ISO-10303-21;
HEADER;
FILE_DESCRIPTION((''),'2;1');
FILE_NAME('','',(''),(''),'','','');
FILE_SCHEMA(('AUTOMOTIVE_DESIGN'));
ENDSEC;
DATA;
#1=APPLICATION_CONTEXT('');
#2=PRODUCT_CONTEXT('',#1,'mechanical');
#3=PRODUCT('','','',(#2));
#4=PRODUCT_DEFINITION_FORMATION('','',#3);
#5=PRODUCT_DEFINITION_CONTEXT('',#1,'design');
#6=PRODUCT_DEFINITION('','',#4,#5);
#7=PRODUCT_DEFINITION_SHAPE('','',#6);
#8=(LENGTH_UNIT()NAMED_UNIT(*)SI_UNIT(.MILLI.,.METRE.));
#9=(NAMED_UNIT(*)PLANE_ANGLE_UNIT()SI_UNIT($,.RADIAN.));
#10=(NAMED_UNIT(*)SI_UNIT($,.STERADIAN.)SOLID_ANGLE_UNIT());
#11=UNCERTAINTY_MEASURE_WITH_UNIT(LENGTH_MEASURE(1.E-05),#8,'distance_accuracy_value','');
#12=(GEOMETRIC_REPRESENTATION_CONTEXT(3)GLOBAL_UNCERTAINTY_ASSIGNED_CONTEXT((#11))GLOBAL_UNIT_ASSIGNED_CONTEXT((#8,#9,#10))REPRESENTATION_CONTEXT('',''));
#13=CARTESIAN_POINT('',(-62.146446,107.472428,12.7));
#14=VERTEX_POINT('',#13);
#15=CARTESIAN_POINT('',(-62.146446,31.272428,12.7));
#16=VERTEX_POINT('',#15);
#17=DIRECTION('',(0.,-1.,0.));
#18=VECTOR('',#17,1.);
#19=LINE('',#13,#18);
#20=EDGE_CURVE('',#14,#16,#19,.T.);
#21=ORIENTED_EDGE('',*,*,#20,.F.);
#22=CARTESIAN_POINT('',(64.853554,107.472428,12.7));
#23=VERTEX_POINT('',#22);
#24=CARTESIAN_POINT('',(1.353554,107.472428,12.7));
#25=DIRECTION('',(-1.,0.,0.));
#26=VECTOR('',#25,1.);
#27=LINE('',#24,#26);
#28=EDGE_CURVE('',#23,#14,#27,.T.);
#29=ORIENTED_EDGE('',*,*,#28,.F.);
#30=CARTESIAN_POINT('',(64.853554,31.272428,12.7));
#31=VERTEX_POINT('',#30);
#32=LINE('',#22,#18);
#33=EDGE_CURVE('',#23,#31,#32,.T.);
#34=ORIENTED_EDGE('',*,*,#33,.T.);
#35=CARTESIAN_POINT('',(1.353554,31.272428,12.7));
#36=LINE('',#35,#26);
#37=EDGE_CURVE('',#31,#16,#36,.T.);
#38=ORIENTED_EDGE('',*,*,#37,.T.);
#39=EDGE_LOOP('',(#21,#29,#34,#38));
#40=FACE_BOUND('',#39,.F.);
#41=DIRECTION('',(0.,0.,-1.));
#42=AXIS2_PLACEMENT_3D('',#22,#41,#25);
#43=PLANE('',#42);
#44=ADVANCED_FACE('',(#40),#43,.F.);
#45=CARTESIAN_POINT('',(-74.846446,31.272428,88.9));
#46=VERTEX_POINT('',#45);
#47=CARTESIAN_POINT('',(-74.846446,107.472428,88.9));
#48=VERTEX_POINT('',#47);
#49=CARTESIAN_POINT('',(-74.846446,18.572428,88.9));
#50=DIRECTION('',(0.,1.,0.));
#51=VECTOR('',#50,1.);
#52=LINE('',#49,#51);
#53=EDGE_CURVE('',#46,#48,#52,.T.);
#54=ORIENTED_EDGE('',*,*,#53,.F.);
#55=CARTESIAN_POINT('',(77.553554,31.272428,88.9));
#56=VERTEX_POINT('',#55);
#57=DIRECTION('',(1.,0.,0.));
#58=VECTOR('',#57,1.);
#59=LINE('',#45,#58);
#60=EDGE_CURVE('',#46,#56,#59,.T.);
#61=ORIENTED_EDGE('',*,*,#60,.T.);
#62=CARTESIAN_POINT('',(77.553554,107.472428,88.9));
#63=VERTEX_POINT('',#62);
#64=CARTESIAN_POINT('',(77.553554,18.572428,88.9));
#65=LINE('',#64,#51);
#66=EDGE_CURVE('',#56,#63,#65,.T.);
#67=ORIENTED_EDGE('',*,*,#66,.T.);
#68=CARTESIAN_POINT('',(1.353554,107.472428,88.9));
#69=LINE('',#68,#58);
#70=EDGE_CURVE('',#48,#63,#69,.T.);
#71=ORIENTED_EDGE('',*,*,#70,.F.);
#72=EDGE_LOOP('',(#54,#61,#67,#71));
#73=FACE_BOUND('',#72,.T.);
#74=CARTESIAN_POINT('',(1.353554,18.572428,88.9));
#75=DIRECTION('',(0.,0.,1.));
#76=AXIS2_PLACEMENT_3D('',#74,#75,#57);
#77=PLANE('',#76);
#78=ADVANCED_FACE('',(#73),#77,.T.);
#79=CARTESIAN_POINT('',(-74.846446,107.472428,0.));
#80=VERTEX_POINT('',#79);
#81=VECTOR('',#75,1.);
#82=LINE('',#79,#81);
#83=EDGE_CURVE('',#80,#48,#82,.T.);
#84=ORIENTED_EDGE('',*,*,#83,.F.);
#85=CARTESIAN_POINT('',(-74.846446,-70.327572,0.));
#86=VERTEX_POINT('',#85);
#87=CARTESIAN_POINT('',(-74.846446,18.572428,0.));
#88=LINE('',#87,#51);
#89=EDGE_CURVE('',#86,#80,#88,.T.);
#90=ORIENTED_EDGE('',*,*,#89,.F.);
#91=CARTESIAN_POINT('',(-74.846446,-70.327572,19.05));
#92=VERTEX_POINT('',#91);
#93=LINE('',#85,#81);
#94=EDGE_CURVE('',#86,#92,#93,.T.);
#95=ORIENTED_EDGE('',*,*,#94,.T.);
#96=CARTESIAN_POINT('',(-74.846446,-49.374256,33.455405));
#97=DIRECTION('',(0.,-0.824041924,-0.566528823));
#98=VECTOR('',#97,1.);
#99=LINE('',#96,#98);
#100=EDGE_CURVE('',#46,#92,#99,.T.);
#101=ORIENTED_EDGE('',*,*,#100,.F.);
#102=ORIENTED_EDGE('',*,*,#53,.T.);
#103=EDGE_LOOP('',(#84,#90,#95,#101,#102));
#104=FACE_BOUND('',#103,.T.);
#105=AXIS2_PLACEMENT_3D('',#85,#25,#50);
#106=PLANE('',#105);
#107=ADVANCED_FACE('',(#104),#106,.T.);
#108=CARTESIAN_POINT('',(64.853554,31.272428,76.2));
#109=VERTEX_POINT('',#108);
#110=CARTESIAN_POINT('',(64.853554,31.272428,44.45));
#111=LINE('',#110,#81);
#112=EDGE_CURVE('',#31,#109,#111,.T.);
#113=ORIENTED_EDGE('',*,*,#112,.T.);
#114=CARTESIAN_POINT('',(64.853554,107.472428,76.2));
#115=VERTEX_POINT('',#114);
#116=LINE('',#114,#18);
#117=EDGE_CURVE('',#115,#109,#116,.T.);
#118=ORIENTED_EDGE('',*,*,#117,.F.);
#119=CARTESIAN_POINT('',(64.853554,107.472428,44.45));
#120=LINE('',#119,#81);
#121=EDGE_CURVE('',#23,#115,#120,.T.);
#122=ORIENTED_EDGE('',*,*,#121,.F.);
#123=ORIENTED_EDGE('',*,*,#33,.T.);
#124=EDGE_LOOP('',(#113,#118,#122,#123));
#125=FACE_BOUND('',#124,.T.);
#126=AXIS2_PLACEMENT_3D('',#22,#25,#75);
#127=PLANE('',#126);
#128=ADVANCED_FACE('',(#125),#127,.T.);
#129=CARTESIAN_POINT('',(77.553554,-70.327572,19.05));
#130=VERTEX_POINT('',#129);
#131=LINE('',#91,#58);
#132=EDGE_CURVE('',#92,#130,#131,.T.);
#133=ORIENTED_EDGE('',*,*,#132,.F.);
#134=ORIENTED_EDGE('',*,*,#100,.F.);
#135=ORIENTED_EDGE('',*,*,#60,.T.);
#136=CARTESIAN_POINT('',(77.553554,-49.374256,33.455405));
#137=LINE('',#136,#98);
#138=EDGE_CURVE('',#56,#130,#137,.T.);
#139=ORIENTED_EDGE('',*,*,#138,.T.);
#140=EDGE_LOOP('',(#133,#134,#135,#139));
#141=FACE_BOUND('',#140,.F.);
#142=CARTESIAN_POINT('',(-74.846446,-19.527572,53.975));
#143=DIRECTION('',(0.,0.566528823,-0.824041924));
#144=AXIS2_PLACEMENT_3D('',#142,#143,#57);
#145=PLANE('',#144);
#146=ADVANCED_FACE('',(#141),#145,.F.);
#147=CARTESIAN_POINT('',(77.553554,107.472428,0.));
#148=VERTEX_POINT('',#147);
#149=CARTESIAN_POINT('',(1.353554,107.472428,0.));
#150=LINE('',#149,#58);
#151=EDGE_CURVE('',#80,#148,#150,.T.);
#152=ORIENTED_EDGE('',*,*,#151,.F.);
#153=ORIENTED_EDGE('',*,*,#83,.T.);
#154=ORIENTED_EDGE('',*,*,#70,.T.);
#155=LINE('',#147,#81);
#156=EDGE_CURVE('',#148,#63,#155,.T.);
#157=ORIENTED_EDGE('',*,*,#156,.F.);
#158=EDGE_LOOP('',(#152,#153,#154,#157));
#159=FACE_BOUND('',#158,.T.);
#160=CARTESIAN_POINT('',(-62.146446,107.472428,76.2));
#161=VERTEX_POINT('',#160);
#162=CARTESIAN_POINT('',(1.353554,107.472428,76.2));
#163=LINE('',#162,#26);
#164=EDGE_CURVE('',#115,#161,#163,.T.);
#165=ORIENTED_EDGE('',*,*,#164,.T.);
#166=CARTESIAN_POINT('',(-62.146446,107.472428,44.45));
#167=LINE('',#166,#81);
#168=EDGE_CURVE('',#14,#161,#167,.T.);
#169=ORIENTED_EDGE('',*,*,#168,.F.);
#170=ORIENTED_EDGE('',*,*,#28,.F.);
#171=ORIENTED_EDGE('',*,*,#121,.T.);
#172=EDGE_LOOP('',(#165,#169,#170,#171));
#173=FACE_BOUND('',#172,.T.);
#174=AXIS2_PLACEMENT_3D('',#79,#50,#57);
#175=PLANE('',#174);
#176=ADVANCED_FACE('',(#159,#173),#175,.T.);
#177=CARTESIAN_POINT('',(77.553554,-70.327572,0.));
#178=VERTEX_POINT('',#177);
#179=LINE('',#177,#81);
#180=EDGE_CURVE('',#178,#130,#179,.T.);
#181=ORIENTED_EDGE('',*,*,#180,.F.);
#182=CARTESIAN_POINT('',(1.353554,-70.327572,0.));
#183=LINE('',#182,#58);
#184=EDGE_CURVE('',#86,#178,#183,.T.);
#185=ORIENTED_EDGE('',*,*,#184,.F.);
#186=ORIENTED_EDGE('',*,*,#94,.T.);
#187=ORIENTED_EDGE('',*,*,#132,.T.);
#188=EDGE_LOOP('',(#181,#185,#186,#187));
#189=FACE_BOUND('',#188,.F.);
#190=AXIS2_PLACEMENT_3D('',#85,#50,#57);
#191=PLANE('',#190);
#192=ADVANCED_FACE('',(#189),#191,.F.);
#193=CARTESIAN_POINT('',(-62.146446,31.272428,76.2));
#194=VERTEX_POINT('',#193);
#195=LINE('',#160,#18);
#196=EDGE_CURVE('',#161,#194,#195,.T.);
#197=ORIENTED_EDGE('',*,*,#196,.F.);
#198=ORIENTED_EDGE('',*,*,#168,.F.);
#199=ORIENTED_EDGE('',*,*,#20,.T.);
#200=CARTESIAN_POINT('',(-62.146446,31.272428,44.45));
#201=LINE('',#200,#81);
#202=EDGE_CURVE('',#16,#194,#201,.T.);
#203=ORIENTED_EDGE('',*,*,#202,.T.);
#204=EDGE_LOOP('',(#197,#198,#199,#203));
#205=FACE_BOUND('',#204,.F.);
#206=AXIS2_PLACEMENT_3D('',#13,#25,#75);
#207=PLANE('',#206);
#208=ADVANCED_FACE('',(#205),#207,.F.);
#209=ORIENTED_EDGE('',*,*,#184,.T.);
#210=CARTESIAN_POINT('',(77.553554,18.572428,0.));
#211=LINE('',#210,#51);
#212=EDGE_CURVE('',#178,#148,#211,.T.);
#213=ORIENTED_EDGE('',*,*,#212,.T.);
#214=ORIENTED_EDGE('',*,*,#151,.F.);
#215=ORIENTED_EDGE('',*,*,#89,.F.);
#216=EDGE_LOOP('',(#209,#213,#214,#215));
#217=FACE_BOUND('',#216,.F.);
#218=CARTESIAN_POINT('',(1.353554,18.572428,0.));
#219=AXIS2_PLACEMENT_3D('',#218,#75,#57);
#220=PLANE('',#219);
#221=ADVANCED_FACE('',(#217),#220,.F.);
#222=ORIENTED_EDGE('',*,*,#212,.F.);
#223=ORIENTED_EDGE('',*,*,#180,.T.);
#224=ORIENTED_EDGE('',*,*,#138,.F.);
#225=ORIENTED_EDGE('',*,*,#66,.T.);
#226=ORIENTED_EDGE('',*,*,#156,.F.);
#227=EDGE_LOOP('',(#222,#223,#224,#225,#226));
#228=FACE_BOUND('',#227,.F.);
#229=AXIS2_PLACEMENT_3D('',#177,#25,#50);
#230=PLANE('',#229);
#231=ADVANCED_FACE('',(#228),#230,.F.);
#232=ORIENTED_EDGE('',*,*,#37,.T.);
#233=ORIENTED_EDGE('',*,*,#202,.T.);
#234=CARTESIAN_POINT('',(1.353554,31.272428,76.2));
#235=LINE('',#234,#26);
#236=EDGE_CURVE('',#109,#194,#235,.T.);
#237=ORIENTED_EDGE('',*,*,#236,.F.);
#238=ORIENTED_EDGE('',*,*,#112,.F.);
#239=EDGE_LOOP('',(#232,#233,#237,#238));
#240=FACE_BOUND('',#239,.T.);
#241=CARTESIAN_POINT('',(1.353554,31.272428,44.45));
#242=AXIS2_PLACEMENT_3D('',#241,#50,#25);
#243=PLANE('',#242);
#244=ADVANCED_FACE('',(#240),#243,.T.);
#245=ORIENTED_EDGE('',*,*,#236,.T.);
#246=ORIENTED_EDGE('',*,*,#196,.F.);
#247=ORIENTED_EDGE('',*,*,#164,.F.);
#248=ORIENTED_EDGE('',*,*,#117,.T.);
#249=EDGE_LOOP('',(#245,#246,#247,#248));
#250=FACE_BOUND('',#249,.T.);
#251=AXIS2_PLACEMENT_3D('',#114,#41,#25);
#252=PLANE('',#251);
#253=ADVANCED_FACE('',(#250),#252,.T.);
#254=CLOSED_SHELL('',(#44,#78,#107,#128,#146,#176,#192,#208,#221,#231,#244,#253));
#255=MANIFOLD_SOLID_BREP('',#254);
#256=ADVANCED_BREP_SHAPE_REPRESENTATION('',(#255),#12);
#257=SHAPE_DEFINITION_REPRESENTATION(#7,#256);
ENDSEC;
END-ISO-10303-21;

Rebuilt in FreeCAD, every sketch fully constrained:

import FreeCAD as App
import Part
import Sketcher

V = App.Vector
Q = App.Units.Quantity


def edges_at(feature, points):
    """Names of the edges that pass closest to the given points."""
    edges = feature.Shape.Edges
    near = lambda p: min(range(len(edges)), key=lambda i: edges[i].distToShape(Part.Vertex(*p))[0])
    return sorted({f"Edge{near(p) + 1}" for p in points})


def add_polygon(sketch, points):
    """Adds a closed chain of lines whose ends are joined by coincident constraints."""
    first, n = sketch.GeometryCount, len(points)
    for a, b in zip(points, points[1:] + points[:1]):
        sketch.addGeometry(Part.LineSegment(App.Vector(*a, 0), App.Vector(*b, 0)), False)
    for i in range(n):
        sketch.addConstraint(Sketcher.Constraint("Coincident", first + i, 2, first + (i + 1) % n, 1))

doc = App.newDocument("Part")
body = doc.addObject("PartDesign::Body", "Body")

sketch1 = body.newObject("Sketcher::SketchObject", "Sketch")
sketch1.AttachmentSupport = (doc.getObject("XY_Plane"), [""])
sketch1.MapMode = "FlatFace"
add_polygon(sketch1, [(-75, 107), (-75, -70), (78, -70), (78, 107)])
sketch1.addConstraint(Sketcher.Constraint("Vertical", 0))
sketch1.addConstraint(Sketcher.Constraint("Horizontal", 1))
sketch1.addConstraint(Sketcher.Constraint("Vertical", 2))
sketch1.addConstraint(Sketcher.Constraint("Horizontal", 3))
sketch1.addConstraint(Sketcher.Constraint("DistanceX", 1, 1, 1, 2, Q("6 in")))
sketch1.addConstraint(Sketcher.Constraint("DistanceY", 0, 2, 0, 1, Q("7 in")))
sketch1.addConstraint(Sketcher.Constraint("DistanceX", 0, 2, -1, 1, Q("74.846446 mm")))
sketch1.addConstraint(Sketcher.Constraint("DistanceY", 0, 2, -1, 1, Q("70.327572 mm")))
pad1 = body.newObject("PartDesign::Pad", "Pad")
pad1.Profile = sketch1
pad1.Length = Q("3.5 in")
doc.recompute()

chamfer = body.newObject("PartDesign::Chamfer", "Chamfer")
chamfer.Base = (pad1, edges_at(pad1, [(1.354, -70.328, 88.9)]))
chamfer.ChamferType = "Two distances"
chamfer.Size = Q("4 in")
chamfer.Size2 = Q("2.75 in")
chamfer.FlipDirection = True

sketch2 = body.newObject("Sketcher::SketchObject", "Sketch001")
sketch2.AttachmentSupport = (doc.getObject("XZ_Plane"), [""])
sketch2.MapMode = "FlatFace"
sketch2.AttachmentOffset = App.Placement(V(0, 0, -107.472428), App.Rotation())
add_polygon(sketch2, [(65, 76), (65, 13), (-62, 13), (-62, 76)])
sketch2.addConstraint(Sketcher.Constraint("Vertical", 0))
sketch2.addConstraint(Sketcher.Constraint("Horizontal", 1))
sketch2.addConstraint(Sketcher.Constraint("Vertical", 2))
sketch2.addConstraint(Sketcher.Constraint("Horizontal", 3))
sketch2.addConstraint(Sketcher.Constraint("DistanceX", 1, 2, 1, 1, Q("5 in")))
sketch2.addConstraint(Sketcher.Constraint("DistanceY", 0, 2, 0, 1, Q("2.5 in")))
sketch2.addConstraint(Sketcher.Constraint("DistanceY", -1, 1, 2, 2, Q("3 in")))
sketch2.addConstraint(Sketcher.Constraint("DistanceX", -1, 1, 0, 2, Q("64.853554 mm")))
pocket1 = body.newObject("PartDesign::Pocket", "Pocket")
pocket1.Profile = sketch2
pocket1.Length = Q("3 in")
pocket1.Reversed = True

doc.recompute()
